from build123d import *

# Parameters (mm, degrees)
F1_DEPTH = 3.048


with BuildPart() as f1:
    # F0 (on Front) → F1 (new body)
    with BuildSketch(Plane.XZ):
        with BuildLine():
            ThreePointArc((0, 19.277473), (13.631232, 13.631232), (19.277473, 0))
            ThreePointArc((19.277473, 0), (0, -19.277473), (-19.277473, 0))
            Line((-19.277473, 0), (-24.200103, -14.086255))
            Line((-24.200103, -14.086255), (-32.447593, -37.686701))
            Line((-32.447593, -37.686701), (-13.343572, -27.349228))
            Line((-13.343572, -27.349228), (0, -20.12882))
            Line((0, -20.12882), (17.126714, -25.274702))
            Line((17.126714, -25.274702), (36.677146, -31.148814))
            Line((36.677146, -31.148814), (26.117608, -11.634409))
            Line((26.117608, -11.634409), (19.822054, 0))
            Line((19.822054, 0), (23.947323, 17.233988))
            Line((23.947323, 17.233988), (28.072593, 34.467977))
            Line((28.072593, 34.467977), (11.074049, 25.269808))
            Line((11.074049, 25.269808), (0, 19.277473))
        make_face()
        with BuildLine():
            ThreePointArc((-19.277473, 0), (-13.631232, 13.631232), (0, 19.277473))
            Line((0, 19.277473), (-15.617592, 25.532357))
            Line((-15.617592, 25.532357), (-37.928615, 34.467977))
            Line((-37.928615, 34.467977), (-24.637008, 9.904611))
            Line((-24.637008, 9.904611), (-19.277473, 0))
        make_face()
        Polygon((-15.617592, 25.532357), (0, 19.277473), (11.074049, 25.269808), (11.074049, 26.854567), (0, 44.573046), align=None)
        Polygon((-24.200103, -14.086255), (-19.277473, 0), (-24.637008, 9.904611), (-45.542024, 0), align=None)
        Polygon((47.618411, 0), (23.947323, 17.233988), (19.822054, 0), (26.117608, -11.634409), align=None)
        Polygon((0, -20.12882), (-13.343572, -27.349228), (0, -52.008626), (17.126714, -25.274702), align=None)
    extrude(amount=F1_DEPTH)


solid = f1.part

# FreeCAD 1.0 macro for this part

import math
import FreeCAD as App
import Part
import Sketcher

V = App.Vector
Q = App.Units.Quantity


def add_polygon(sketch, points):
    """Adds a closed chain of lines whose ends are joined by coincident constraints."""
    first, n = sketch.GeometryCount, len(points)
    for a, b in zip(points, points[1:] + points[:1]):
        sketch.addGeometry(Part.LineSegment(App.Vector(*a, 0), App.Vector(*b, 0)), False)
    for i in range(n):
        sketch.addConstraint(Sketcher.Constraint("Coincident", first + i, 2, first + (i + 1) % n, 1))

doc = App.newDocument("Part")
body = doc.addObject("PartDesign::Body", "Body")

sketch1 = body.newObject("Sketcher::SketchObject", "Sketch")
sketch1.AttachmentSupport = (doc.getObject("XZ_Plane"), [""])
sketch1.MapMode = "FlatFace"
add_polygon(sketch1, [(-37.9, 34.5), (-24.6, 9.9), (-45.5, 0), (-24.2, -14.1), (-32.4, -37.7), (-13.3, -27.3), (0, -52), (17.1, -25.3), (36.7, -31.1), (26.1, -11.6), (47.6, 0), (23.9, 17.2), (28.1, 34.5), (11.1, 25.3), (11.1, 26.9), (0, 44.6), (-15.6, 25.5)])
sketch1.addGeometry(Part.ArcOfCircle(Part.Circle(V(0, 0, 0), V(0, 0, 1), 19.3), math.radians(180), math.radians(360)), False)
sketch1.addGeometry(Part.ArcOfCircle(Part.Circle(V(0, 0, 0), V(0, 0, 1), 19.3), math.radians(90), math.radians(180)), False)
sketch1.addGeometry(Part.ArcOfCircle(Part.Circle(V(0, 0, 0), V(0, 0, 1), 19.3), math.radians(0), math.radians(90)), False)
sketch1.addConstraint([
    Sketcher.Constraint("Tangent", 17, 1, 18, 2),
    Sketcher.Constraint("Tangent", 18, 1, 19, 2),
    Sketcher.Constraint("Tangent", 19, 1, 17, 2),
    Sketcher.Constraint("Vertical", 13),
    Sketcher.Constraint("Coincident", 17, 3, -1, 1),
    Sketcher.Constraint("PointOnObject", 1, 2, -1),
    Sketcher.Constraint("PointOnObject", 5, 2, -2),
    Sketcher.Constraint("PointOnObject", 9, 2, -1),
    Sketcher.Constraint("PointOnObject", 14, 2, -2),
    Sketcher.Constraint("PointOnObject", 17, 1, -1),
    Sketcher.Constraint("PointOnObject", 18, 1, -2),
    Sketcher.Constraint("PointOnObject", 19, 1, -1),
    Sketcher.Constraint("Perpendicular", 0, 4),
    Sketcher.Constraint("Perpendicular", 4, 5),
    Sketcher.Constraint("Parallel", 5, 8),
    Sketcher.Constraint("Perpendicular", 8, 9),
    Sketcher.Constraint("Parallel", 9, 12),
    Sketcher.Constraint("Horizontal", 11, 2, 16, 2),
    Sketcher.Constraint("Radius", 17, 19.277473),
    Sketcher.Constraint("DistanceY", 13, 1, 13, 2, 1.584759),
    Sketcher.Constraint("DistanceY", 3, 2, -1, 1, 37.686701),
    Sketcher.Constraint("Distance", 0, 27.928941),
    Sketcher.Constraint("Distance", 2, 25.571472),
    Sketcher.Constraint("Distance", 4, 21.721578),
    Sketcher.Constraint("Distance", 5, 28.038132),
    Sketcher.Constraint("Distance", 6, 31.749441),
    Sketcher.Constraint("Distance", 8, 22.188192),
    Sketcher.Constraint("Distance", 9, 24.446759),
    Sketcher.Constraint("Distance", 10, 29.280211),
    Sketcher.Constraint("Distance", 11, 17.720842),
    Sketcher.Constraint("Distance", 15, 24.626348),
    Sketcher.Constraint("DistanceX", 0, 2, -1, 1, 24.637008),
    Sketcher.Constraint("DistanceY", -1, 1, 0, 2, 9.904611),
    Sketcher.Constraint("DistanceY", 4, 2, -1, 1, 27.349228),
    Sketcher.Constraint("DistanceX", -1, 1, 8, 2, 26.117608),
    Sketcher.Constraint("DistanceY", -1, 1, 10, 2, 17.233988),
    Sketcher.Constraint("DistanceX", -1, 1, 12, 2, 11.074049),
    Sketcher.Constraint("DistanceX", 1, 2, 2, 2, 21.341921),
    Sketcher.Constraint("DistanceX", 3, 2, 2, 2, 8.24749),
    Sketcher.Constraint("DistanceY", 13, 2, 14, 2, 17.718479),
    Sketcher.Constraint("DistanceY", 15, 2, 14, 2, 19.040689),
    Sketcher.Constraint("Distance", 7, 20.413833),
])
pad1 = body.newObject("PartDesign::Pad", "Pad")
pad1.Profile = sketch1
pad1.Length = Q("0.12 in")

doc.recompute()
